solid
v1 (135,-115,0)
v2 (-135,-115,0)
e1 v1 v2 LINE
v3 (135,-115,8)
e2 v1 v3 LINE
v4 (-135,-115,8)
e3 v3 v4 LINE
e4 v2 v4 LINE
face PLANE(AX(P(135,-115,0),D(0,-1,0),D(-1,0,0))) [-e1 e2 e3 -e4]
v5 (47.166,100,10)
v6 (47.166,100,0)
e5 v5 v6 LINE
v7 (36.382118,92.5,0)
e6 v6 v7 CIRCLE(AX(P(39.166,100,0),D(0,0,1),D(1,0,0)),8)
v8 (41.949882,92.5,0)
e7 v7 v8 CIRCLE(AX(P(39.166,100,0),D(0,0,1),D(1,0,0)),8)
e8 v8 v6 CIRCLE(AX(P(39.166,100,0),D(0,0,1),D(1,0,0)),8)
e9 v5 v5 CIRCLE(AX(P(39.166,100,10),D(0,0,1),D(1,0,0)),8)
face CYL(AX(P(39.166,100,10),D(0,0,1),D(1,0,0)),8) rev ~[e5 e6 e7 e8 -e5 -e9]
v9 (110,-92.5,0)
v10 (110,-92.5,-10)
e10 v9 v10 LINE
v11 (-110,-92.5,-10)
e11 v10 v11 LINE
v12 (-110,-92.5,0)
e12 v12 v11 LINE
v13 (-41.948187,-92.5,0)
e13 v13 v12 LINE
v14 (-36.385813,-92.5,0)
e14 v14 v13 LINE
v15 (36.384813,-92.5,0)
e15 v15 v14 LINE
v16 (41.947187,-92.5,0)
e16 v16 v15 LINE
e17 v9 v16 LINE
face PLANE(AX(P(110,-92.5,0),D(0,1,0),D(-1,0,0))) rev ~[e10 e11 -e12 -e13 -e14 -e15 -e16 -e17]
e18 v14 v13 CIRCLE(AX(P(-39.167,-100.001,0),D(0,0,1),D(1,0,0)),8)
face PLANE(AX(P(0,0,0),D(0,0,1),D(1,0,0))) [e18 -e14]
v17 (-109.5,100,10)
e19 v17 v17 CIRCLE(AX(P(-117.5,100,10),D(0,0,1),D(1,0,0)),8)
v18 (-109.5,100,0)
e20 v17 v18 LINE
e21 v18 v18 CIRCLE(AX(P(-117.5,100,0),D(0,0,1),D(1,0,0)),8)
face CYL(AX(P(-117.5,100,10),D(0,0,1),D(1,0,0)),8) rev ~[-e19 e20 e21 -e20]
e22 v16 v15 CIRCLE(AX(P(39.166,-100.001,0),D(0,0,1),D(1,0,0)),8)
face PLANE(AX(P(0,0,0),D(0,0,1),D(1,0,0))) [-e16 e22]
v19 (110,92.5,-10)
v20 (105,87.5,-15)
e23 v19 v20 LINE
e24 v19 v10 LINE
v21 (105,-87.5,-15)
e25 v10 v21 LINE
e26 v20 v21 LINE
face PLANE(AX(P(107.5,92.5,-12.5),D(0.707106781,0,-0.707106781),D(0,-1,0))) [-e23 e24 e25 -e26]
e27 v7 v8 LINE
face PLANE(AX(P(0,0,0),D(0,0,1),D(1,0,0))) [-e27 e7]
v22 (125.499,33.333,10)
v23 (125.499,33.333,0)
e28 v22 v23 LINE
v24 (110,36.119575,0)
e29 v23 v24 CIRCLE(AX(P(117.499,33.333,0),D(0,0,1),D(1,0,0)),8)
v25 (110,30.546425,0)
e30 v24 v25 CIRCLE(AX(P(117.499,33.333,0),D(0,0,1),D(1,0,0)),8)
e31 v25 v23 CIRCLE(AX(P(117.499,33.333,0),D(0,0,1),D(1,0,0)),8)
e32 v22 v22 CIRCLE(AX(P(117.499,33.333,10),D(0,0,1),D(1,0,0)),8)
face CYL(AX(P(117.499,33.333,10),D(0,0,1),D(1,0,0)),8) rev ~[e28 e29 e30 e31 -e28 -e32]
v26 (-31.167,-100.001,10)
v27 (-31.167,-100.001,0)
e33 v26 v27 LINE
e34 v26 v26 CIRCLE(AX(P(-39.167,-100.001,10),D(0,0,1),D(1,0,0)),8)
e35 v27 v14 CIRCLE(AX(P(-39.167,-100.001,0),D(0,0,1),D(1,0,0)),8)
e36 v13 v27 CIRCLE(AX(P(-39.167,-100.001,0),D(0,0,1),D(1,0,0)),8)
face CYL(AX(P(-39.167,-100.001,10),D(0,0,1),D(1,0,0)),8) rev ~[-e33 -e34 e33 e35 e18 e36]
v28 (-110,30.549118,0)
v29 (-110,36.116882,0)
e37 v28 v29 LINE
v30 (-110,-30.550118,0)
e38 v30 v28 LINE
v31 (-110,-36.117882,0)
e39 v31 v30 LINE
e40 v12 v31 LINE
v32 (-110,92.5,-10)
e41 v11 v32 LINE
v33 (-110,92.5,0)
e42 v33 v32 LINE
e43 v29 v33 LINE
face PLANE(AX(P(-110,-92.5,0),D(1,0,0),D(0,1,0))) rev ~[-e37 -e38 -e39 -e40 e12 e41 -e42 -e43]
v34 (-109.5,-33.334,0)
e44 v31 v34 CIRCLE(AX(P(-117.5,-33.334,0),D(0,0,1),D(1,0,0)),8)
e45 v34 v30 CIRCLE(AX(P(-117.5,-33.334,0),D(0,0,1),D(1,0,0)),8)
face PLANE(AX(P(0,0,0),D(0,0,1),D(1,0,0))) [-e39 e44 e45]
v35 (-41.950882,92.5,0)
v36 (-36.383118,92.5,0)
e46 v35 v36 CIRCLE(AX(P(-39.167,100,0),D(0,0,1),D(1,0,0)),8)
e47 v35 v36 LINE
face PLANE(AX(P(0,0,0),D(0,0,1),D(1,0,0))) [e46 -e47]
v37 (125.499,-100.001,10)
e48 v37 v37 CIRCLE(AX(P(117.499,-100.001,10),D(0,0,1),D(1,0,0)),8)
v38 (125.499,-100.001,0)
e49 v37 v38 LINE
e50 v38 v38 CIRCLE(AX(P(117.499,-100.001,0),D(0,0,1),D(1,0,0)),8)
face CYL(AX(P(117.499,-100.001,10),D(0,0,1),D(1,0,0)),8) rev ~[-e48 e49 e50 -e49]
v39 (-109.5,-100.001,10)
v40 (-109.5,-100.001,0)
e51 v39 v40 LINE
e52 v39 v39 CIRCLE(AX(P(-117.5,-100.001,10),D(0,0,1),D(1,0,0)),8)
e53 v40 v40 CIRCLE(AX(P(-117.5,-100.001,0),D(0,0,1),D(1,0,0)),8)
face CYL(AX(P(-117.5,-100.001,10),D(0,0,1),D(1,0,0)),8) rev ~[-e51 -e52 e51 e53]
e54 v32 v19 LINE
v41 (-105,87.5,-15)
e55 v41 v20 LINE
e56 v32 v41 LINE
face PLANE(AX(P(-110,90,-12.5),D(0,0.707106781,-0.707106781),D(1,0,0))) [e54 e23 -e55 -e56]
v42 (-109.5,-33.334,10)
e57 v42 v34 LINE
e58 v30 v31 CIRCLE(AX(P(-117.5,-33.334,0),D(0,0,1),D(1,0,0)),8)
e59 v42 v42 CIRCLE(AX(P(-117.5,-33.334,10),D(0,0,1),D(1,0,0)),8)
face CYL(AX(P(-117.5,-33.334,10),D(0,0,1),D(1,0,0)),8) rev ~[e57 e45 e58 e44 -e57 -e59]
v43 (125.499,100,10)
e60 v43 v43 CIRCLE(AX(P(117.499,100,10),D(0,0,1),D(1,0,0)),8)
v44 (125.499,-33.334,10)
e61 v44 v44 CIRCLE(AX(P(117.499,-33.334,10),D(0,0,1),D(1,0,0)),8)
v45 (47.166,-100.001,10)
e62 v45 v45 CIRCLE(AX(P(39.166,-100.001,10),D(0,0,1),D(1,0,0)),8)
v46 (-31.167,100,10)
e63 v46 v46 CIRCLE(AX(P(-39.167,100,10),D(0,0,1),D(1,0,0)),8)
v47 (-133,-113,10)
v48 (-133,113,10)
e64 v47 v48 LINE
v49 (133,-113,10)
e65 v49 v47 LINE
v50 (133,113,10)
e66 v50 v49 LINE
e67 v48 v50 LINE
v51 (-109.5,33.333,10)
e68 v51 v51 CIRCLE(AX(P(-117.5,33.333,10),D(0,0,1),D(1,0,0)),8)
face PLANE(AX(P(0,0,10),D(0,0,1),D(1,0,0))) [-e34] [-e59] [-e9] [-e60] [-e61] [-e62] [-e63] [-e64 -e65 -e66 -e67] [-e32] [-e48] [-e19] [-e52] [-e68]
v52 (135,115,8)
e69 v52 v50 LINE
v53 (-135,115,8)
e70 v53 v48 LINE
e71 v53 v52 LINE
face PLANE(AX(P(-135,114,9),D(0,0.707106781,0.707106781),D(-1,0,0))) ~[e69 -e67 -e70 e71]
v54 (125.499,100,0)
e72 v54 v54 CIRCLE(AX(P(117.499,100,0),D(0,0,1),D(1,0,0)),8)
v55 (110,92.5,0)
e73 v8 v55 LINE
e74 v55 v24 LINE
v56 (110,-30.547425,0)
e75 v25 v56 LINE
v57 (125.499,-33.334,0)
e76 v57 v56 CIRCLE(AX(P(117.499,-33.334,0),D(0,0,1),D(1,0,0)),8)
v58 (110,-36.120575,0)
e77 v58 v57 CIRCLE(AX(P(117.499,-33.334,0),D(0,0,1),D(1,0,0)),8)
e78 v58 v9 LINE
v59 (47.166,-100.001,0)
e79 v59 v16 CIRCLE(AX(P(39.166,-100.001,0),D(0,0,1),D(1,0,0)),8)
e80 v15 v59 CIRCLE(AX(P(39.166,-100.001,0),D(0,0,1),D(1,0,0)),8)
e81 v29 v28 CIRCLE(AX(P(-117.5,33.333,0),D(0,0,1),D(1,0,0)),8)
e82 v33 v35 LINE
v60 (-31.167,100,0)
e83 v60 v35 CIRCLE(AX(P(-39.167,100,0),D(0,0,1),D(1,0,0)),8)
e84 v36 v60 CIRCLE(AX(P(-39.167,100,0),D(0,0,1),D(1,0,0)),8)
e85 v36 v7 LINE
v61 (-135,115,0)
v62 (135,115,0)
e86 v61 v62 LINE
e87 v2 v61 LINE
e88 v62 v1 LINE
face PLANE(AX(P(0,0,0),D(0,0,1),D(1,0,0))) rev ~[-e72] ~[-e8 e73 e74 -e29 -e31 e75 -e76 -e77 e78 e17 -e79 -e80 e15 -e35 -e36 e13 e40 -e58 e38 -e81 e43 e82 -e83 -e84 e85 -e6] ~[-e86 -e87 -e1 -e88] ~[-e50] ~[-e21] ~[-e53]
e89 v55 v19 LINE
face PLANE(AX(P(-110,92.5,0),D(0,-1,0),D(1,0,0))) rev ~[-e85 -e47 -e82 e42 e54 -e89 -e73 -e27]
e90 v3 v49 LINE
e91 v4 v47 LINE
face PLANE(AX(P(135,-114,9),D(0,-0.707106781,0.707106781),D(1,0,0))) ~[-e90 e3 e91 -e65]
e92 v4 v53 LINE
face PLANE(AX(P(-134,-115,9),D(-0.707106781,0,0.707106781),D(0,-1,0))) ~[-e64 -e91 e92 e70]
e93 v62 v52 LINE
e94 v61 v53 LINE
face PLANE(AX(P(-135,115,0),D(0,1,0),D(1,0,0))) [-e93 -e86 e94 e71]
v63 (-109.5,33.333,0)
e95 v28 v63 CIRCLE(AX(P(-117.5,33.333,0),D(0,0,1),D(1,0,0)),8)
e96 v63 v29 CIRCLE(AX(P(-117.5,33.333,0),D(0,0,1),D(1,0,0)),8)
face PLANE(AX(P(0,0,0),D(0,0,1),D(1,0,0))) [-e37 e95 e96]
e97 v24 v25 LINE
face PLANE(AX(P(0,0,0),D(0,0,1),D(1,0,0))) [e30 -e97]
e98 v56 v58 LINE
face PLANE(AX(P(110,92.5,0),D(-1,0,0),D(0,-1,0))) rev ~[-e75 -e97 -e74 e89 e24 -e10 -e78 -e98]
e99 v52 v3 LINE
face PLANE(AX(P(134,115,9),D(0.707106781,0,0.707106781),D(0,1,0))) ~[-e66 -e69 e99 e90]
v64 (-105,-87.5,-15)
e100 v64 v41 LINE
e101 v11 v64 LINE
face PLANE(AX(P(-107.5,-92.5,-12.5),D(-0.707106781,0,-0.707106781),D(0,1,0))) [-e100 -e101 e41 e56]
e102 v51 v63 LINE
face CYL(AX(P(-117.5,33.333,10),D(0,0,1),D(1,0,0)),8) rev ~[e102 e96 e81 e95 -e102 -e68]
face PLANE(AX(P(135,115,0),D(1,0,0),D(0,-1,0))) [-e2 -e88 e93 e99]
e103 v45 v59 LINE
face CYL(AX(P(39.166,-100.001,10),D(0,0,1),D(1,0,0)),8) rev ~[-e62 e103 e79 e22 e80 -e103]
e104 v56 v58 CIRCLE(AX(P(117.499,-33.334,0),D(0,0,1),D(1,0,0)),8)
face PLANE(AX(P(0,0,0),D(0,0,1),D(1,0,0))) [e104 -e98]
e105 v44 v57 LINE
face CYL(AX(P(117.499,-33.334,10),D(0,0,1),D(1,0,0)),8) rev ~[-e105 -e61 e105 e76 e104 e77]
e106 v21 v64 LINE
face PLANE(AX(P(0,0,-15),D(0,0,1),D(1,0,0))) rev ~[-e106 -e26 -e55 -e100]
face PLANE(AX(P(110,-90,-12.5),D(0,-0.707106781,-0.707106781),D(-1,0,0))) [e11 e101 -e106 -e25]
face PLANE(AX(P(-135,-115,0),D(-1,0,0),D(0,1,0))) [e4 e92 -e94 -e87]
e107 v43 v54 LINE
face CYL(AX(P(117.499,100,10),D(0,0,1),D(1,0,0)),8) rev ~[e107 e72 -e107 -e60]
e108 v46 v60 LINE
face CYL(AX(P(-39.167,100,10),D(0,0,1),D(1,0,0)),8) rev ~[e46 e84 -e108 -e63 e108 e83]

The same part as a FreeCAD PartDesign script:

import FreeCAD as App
import Part
import Sketcher

V = App.Vector
Q = App.Units.Quantity


def edges_at(feature, points):
    """Names of the edges that pass closest to the given points."""
    edges = feature.Shape.Edges
    near = lambda p: min(range(len(edges)), key=lambda i: edges[i].distToShape(Part.Vertex(*p))[0])
    return sorted({f"Edge{near(p) + 1}" for p in points})


def add_polygon(sketch, points):
    """Adds a closed chain of lines whose ends are joined by coincident constraints."""
    first, n = sketch.GeometryCount, len(points)
    for a, b in zip(points, points[1:] + points[:1]):
        sketch.addGeometry(Part.LineSegment(App.Vector(*a, 0), App.Vector(*b, 0)), False)
    for i in range(n):
        sketch.addConstraint(Sketcher.Constraint("Coincident", first + i, 2, first + (i + 1) % n, 1))

doc = App.newDocument("Part")
body = doc.addObject("PartDesign::Body", "Body")

sketch1 = doc.addObject("Sketcher::SketchObject", "Sketch")
body.addObject(sketch1)
sketch1.AttachmentSupport = (doc.XY_Plane, [""])
sketch1.MapMode = "FlatFace"
add_polygon(sketch1, [(110, 92.5), (-110, 92.5), (-110, -92.5), (110, -92.5)])
sketch1.addConstraint([
    Sketcher.Constraint("Horizontal", 0),
    Sketcher.Constraint("Vertical", 1),
    Sketcher.Constraint("Horizontal", 2),
    Sketcher.Constraint("Vertical", 3),
    Sketcher.Constraint("Symmetric", 0, 2, 2, 2, -1, 1),
    Sketcher.Constraint("DistanceX", 0, 2, 0, 1, Q("220 mm")),
    Sketcher.Constraint("DistanceY", 1, 2, 1, 1, Q("185 mm")),
])
pad1 = doc.addObject("PartDesign::Pad", "Pad")
body.addObject(pad1)
pad1.Profile = sketch1
pad1.Length = 15
pad1.Reversed = True

sketch2 = doc.addObject("Sketcher::SketchObject", "Sketch001")
body.addObject(sketch2)
sketch2.AttachmentSupport = (doc.XY_Plane, [""])
sketch2.MapMode = "FlatFace"
add_polygon(sketch2, [(135, 115), (-135, 115), (-135, -115), (135, -115)])
sketch2.addConstraint([
    Sketcher.Constraint("Horizontal", 0),
    Sketcher.Constraint("Vertical", 1),
    Sketcher.Constraint("Horizontal", 2),
    Sketcher.Constraint("Vertical", 3),
    Sketcher.Constraint("Symmetric", 0, 2, 2, 2, -1, 1),
    Sketcher.Constraint("DistanceX", 0, 2, 0, 1, Q("270 mm")),
    Sketcher.Constraint("DistanceY", 1, 2, 1, 1, Q("230 mm")),
])
pad2 = doc.addObject("PartDesign::Pad", "Pad001")
body.addObject(pad2)
pad2.Profile = sketch2
pad2.Length = 10
doc.recompute()

chamfer = doc.addObject("PartDesign::Chamfer", "Chamfer")
body.addObject(chamfer)
chamfer.Base = (pad2, edges_at(pad2, [
    (0, 92.5, -15),
    (110, 0, -15),
    (0, -92.5, -15),
    (-110, 0, -15),
]))
chamfer.Size = 5

sketch3 = doc.addObject("Sketcher::SketchObject", "Sketch002")
body.addObject(sketch3)
sketch3.AttachmentSupport = (doc.XY_Plane, [""])
sketch3.MapMode = "FlatFace"
sketch3.AttachmentOffset = App.Placement(V(0, 0, 10), App.Rotation())
sketch3.addGeometry([
    Part.Circle(V(117.5, -33.3333, 0), V(0, 0, 1), 4.188),
    Part.Circle(V(117.5, 33.3333, 0), V(0, 0, 1), 4.188),
    Part.Circle(V(117.5, -100, 0), V(0, 0, 1), 4.188),
    Part.Circle(V(39.1667, -100, 0), V(0, 0, 1), 4.188),
    Part.Circle(V(-39.1667, -100, 0), V(0, 0, 1), 4.188),
    Part.Circle(V(-117.5, -100, 0), V(0, 0, 1), 4.188),
    Part.Circle(V(-117.5, -33.3333, 0), V(0, 0, 1), 4.188),
    Part.Circle(V(-117.5, 33.3333, 0), V(0, 0, 1), 4.188),
    Part.Circle(V(117.5, 100, 0), V(0, 0, 1), 4.188),
    Part.Circle(V(39.1667, 100, 0), V(0, 0, 1), 4.188),
    Part.Circle(V(-39.1667, 100, 0), V(0, 0, 1), 4.188),
    Part.Circle(V(-117.5, 100, 0), V(0, 0, 1), 4.188),
], False)
sketch3.addConstraint([
    Sketcher.Constraint("Equal", 0, 1),
    Sketcher.Constraint("Equal", 1, 2),
    Sketcher.Constraint("Equal", 2, 3),
    Sketcher.Constraint("Equal", 3, 4),
    Sketcher.Constraint("Equal", 4, 5),
    Sketcher.Constraint("Equal", 5, 6),
    Sketcher.Constraint("Equal", 6, 7),
    Sketcher.Constraint("Equal", 7, 8),
    Sketcher.Constraint("Equal", 8, 9),
    Sketcher.Constraint("Equal", 9, 10),
    Sketcher.Constraint("Equal", 10, 11),
    Sketcher.Constraint("Symmetric", 1, 3, 6, 3, -1, 1),
    Sketcher.Constraint("Symmetric", 0, 3, 7, 3, -1, 1),
    Sketcher.Constraint("Symmetric", 5, 3, 8, 3, -1, 1),
    Sketcher.Constraint("Symmetric", 4, 3, 9, 3, -1, 1),
    Sketcher.Constraint("Symmetric", 3, 3, 10, 3, -1, 1),
    Sketcher.Constraint("Symmetric", 2, 3, 11, 3, -1, 1),
    Sketcher.Constraint("Symmetric", 3, 3, 4, 3, -2),
    Sketcher.Constraint("Symmetric", 2, 3, 5, 3, -2),
    Sketcher.Constraint("Symmetric", 0, 3, 6, 3, -2),
    Sketcher.Constraint("Horizontal", 2, 3, 3, 3),
    Sketcher.Constraint("Vertical", 1, 3, 2, 3),
    Sketcher.Constraint("Diameter", 0, Q("8.376 mm")),
    Sketcher.Constraint("DistanceY", 2, 3, -1, 1, Q("100 mm")),
    Sketcher.Constraint("DistanceX", 5, 3, 2, 3, Q("235 mm")),
    Sketcher.Constraint("DistanceY", 0, 3, -1, 1, Q("33.3333 mm")),
    Sketcher.Constraint("DistanceX", -1, 1, 3, 3, Q("39.1667 mm")),
])
doc.recompute()
hole = doc.addObject("PartDesign::Hole", "Hole")
body.addObject(hole)
hole.Profile = sketch3
hole.ThreadType = "None"
hole.Diameter = 8.376
hole.DepthType = "Dimension"
hole.Depth = 27.3
hole.DrillPoint = "Angled"
hole.DrillPointAngle = 118
doc.recompute()

chamfer2 = doc.addObject("PartDesign::Chamfer", "Chamfer001")
body.addObject(chamfer2)
chamfer2.Base = (hole, edges_at(hole, [
    (0, 115, 10),
    (-135, 0, 10),
    (135, 0, 10),
    (0, -115, 10),
]))
chamfer2.Size = 2

sketch4 = doc.addObject("Sketcher::SketchObject", "Sketch003")
body.addObject(sketch4)
sketch4.AttachmentSupport = (doc.XY_Plane, [""])
sketch4.MapMode = "FlatFace"
sketch4.AttachmentOffset = App.Placement(V(0, 0, 10), App.Rotation())
sketch4.addGeometry([
    Part.Circle(V(-117.5, 100, 0), V(0, 0, 1), 8),
    Part.Circle(V(39.166, 100, 0), V(0, 0, 1), 8),
    Part.Circle(V(-117.5, 33.333, 0), V(0, 0, 1), 8),
    Part.Circle(V(-117.5, -100.001, 0), V(0, 0, 1), 8),
    Part.Circle(V(39.166, -100.001, 0), V(0, 0, 1), 8),
    Part.Circle(V(117.499, 33.333, 0), V(0, 0, 1), 8),
    Part.Circle(V(117.499, -33.334, 0), V(0, 0, 1), 8),
    Part.Circle(V(117.499, -100.001, 0), V(0, 0, 1), 8),
    Part.Circle(V(-39.167, -100.001, 0), V(0, 0, 1), 8),
    Part.Circle(V(-117.5, -33.334, 0), V(0, 0, 1), 8),
    Part.Circle(V(117.499, 100, 0), V(0, 0, 1), 8),
    Part.Circle(V(-39.167, 100, 0), V(0, 0, 1), 8),
], False)
sketch4.addConstraint([
    Sketcher.Constraint("Equal", 0, 1),
    Sketcher.Constraint("Equal", 1, 2),
    Sketcher.Constraint("Equal", 2, 3),
    Sketcher.Constraint("Equal", 3, 4),
    Sketcher.Constraint("Equal", 4, 5),
    Sketcher.Constraint("Equal", 5, 6),
    Sketcher.Constraint("Equal", 6, 7),
    Sketcher.Constraint("Equal", 7, 8),
    Sketcher.Constraint("Equal", 8, 9),
    Sketcher.Constraint("Equal", 9, 10),
    Sketcher.Constraint("Equal", 10, 11),
    Sketcher.Constraint("Horizontal", 0, 3, 1, 3),
    Sketcher.Constraint("Horizontal", 3, 3, 4, 3),
    Sketcher.Constraint("Horizontal", 2, 3, 5, 3),
    Sketcher.Constraint("Horizontal", 4, 3, 7, 3),
    Sketcher.Constraint("Horizontal", 7, 3, 8, 3),
    Sketcher.Constraint("Horizontal", 6, 3, 9, 3),
    Sketcher.Constraint("Horizontal", 1, 3, 10, 3),
    Sketcher.Constraint("Horizontal", 10, 3, 11, 3),
    Sketcher.Constraint("Vertical", 0, 3, 2, 3),
    Sketcher.Constraint("Vertical", 2, 3, 3, 3),
    Sketcher.Constraint("Vertical", 1, 3, 4, 3),
    Sketcher.Constraint("Vertical", 5, 3, 6, 3),
    Sketcher.Constraint("Vertical", 6, 3, 7, 3),
    Sketcher.Constraint("Vertical", 3, 3, 9, 3),
    Sketcher.Constraint("Vertical", 7, 3, 10, 3),
    Sketcher.Constraint("Vertical", 8, 3, 11, 3),
    Sketcher.Constraint("Diameter", 0, Q("16 mm")),
    Sketcher.Constraint("DistanceY", -1, 1, 0, 3, Q("100 mm")),
    Sketcher.Constraint("DistanceY", 2, 3, 0, 3, Q("66.667 mm")),
    Sketcher.Constraint("DistanceX", 1, 3, 5, 3, Q("78.333 mm")),
    Sketcher.Constraint("DistanceY", 6, 3, 5, 3, Q("66.667 mm")),
    Sketcher.Constraint("DistanceY", 4, 3, 6, 3, Q("66.667 mm")),
    Sketcher.Constraint("DistanceX", 3, 3, 8, 3, Q("78.333 mm")),
    Sketcher.Constraint("DistanceX", 8, 3, 4, 3, Q("78.333 mm")),
    Sketcher.Constraint("DistanceX", 0, 3, -1, 1, Q("117.5 mm")),
])
pocket1 = doc.addObject("PartDesign::Pocket", "Pocket")
body.addObject(pocket1)
pocket1.Profile = sketch4
pocket1.Length = 10

doc.recompute()
